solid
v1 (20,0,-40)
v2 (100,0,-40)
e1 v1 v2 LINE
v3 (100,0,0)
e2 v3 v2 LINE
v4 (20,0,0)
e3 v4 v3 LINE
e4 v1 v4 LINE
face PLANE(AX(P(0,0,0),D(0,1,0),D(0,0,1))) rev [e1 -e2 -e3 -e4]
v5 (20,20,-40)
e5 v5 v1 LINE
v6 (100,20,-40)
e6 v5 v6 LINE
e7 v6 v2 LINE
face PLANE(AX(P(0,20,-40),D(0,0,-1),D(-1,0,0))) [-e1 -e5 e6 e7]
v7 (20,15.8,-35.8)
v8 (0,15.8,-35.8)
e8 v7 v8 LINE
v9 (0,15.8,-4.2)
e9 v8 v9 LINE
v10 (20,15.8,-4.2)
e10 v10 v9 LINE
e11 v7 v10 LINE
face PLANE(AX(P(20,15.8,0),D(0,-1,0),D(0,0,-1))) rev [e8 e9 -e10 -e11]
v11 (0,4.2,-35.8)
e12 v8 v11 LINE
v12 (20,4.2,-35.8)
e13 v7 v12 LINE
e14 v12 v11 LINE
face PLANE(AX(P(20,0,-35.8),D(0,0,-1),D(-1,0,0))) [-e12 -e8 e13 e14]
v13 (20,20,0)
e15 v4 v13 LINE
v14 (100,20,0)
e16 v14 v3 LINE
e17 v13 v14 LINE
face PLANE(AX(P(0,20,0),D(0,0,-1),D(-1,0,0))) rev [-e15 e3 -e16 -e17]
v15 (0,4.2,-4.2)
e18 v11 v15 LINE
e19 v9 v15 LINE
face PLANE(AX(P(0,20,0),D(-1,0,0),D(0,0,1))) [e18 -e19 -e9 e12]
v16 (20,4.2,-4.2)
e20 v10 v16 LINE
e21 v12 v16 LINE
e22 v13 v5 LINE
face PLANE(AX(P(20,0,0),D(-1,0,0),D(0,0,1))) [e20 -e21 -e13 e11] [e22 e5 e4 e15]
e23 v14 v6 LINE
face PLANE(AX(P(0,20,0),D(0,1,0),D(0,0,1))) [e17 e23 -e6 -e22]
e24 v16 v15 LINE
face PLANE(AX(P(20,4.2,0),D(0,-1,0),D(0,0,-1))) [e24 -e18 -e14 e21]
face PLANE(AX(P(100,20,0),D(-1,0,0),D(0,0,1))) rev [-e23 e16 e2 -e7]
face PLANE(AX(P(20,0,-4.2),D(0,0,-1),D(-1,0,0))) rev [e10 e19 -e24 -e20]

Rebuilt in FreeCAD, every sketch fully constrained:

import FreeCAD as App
import Part
import Sketcher
Q = App.Units.Quantity


def add_polygon(sketch, points):
    """Adds a closed chain of lines whose ends are joined by coincident constraints."""
    first, n = sketch.GeometryCount, len(points)
    for a, b in zip(points, points[1:] + points[:1]):
        sketch.addGeometry(Part.LineSegment(App.Vector(*a, 0), App.Vector(*b, 0)), False)
    for i in range(n):
        sketch.addConstraint(Sketcher.Constraint("Coincident", first + i, 2, first + (i + 1) % n, 1))

doc = App.newDocument("Part")
body = doc.addObject("PartDesign::Body", "Body")

# Sketch on XZ plane
sketch1 = body.newObject("Sketcher::SketchObject", "Sketch")
sketch1.AttachmentSupport = (doc.getObject("XZ_Plane"), [""])
sketch1.MapMode = "FlatFace"
add_polygon(sketch1, [(0, -40), (0, 0), (100, 0), (100, -40)])  # lines 0-3
sketch1.addConstraint([
    Sketcher.Constraint("Vertical", 0),
    Sketcher.Constraint("Horizontal", 1),
    Sketcher.Constraint("Vertical", 2),
    Sketcher.Constraint("Horizontal", 3),
    Sketcher.Constraint("Coincident", 0, 2, -1, 1),
    Sketcher.Constraint("DistanceX", 1, 1, 1, 2, Q("100 mm")),
    Sketcher.Constraint("DistanceY", 0, 1, 0, 2, Q("40 mm")),
])
pad1 = body.newObject("PartDesign::Pad", "Pad")
pad1.Profile = sketch1
pad1.Length = 20
pad1.Reversed = True

# Sketch on YZ plane
sketch2 = body.newObject("Sketcher::SketchObject", "Sketch001")
sketch2.AttachmentSupport = (doc.getObject("YZ_Plane"), [""])
sketch2.MapMode = "FlatFace"
add_polygon(sketch2, [(20, -40), (0, -40), (0, 0), (20, 0)])  # lines 0-3
add_polygon(sketch2, [(16, -36), (16, -4), (4, -4), (4, -36)])  # lines 4-7
sketch2.addConstraint([
    Sketcher.Constraint("Horizontal", 0),
    Sketcher.Constraint("Vertical", 1),
    Sketcher.Constraint("Horizontal", 2),
    Sketcher.Constraint("Vertical", 3),
    Sketcher.Constraint("Vertical", 4),
    Sketcher.Constraint("Horizontal", 5),
    Sketcher.Constraint("Vertical", 6),
    Sketcher.Constraint("Horizontal", 7),
    Sketcher.Constraint("Coincident", 1, 2, -1, 1),
    Sketcher.Constraint("DistanceX", 0, 2, 0, 1, Q("20 mm")),
    Sketcher.Constraint("DistanceX", 5, 2, 5, 1, Q("12 mm")),
    Sketcher.Constraint("DistanceY", 1, 1, 1, 2, Q("40 mm")),
    Sketcher.Constraint("DistanceY", 4, 1, 4, 2, Q("32 mm")),
    Sketcher.Constraint("DistanceX", -1, 1, 4, 2, Q("16 mm")),
    Sketcher.Constraint("DistanceY", 4, 2, -1, 1, Q("4 mm")),
])
pocket1 = body.newObject("PartDesign::Pocket", "Pocket")
pocket1.Profile = sketch2
pocket1.Length = 20
pocket1.Reversed = True

# Sketch on YZ plane
sketch3 = body.newObject("Sketcher::SketchObject", "Sketch002")
sketch3.AttachmentSupport = (doc.getObject("YZ_Plane"), [""])
sketch3.MapMode = "FlatFace"
add_polygon(sketch3, [(16, -36), (4, -36), (4, -4), (16, -4)])  # lines 0-3
add_polygon(sketch3, [(4, -4), (4, -36), (16, -36), (16, -4)])  # lines 4-7
sketch3.addConstraint([
    Sketcher.Constraint("Horizontal", 0),
    Sketcher.Constraint("Vertical", 1),
    Sketcher.Constraint("Horizontal", 2),
    Sketcher.Constraint("Vertical", 3),
    Sketcher.Constraint("Vertical", 4),
    Sketcher.Constraint("Horizontal", 5),
    Sketcher.Constraint("Vertical", 6),
    Sketcher.Constraint("Horizontal", 7),
    Sketcher.Constraint("DistanceX", 0, 2, 0, 1, Q("12 mm")),
    Sketcher.Constraint("DistanceY", 1, 1, 1, 2, Q("32 mm")),
    Sketcher.Constraint("DistanceX", 5, 1, 5, 2, Q("11.6 mm")),
    Sketcher.Constraint("DistanceY", 4, 2, 4, 1, Q("31.6 mm")),
    Sketcher.Constraint("DistanceX", -1, 1, 0, 2, Q("4 mm")),
    Sketcher.Constraint("DistanceY", 0, 2, -1, 1, Q("36 mm")),
    Sketcher.Constraint("DistanceX", -1, 1, 4, 2, Q("4.2 mm")),
    Sketcher.Constraint("DistanceY", 4, 2, -1, 1, Q("35.8 mm")),
])
pocket2 = body.newObject("PartDesign::Pocket", "Pocket001")
pocket2.Profile = sketch3
pocket2.Length = 20
pocket2.Reversed = True

doc.recompute()
